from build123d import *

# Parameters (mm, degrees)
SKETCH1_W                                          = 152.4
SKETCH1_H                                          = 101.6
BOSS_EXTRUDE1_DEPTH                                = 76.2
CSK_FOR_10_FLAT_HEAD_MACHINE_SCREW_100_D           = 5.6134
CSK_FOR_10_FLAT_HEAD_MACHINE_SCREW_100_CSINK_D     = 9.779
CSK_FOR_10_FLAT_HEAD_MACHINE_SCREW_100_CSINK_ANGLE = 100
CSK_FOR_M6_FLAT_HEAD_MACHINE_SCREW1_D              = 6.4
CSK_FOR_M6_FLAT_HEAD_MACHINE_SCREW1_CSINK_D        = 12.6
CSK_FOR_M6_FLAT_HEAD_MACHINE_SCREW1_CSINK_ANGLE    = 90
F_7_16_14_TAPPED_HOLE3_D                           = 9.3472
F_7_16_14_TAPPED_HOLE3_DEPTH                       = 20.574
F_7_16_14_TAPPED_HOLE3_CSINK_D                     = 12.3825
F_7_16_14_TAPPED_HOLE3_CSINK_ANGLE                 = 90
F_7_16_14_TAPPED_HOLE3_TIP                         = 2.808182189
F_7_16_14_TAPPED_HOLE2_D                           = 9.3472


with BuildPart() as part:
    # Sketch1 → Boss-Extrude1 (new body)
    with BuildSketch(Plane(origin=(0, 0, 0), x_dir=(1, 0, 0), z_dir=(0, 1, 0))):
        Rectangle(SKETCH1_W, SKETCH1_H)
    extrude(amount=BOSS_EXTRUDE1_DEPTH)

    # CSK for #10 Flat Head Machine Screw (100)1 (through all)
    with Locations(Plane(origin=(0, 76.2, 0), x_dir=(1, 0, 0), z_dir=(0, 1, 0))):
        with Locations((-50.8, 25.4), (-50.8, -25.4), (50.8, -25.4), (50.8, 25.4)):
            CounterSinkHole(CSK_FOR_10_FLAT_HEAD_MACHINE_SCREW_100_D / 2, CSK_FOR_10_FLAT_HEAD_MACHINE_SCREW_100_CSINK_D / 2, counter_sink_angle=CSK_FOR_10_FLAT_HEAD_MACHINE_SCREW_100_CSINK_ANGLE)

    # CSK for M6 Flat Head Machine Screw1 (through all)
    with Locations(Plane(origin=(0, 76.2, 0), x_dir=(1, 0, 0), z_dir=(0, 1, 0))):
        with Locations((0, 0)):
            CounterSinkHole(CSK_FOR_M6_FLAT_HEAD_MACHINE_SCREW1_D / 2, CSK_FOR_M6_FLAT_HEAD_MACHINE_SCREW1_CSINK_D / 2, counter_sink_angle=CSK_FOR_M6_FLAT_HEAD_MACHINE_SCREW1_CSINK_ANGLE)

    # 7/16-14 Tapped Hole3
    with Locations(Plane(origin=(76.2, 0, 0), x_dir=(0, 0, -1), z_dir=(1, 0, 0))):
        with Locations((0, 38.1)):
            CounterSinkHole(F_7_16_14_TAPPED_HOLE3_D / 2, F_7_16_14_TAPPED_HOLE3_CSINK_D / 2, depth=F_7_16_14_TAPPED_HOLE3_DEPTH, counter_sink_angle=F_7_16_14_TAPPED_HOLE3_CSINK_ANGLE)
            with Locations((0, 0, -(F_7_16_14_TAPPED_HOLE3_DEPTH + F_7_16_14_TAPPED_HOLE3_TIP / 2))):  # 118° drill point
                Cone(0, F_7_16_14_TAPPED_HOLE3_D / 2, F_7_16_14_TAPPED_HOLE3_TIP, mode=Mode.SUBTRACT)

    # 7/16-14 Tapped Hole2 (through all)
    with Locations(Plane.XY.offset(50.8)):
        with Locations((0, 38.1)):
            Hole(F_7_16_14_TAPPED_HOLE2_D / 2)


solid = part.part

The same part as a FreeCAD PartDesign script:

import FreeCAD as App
import Part
import Sketcher
Q = App.Units.Quantity


def add_polygon(sketch, points):
    """Adds a closed chain of lines whose ends are joined by coincident constraints."""
    first, n = sketch.GeometryCount, len(points)
    for a, b in zip(points, points[1:] + points[:1]):
        sketch.addGeometry(Part.LineSegment(App.Vector(*a, 0), App.Vector(*b, 0)), False)
    for i in range(n):
        sketch.addConstraint(Sketcher.Constraint("Coincident", first + i, 2, first + (i + 1) % n, 1))

doc = App.newDocument("Part")
body = doc.addObject("PartDesign::Body", "Body")

# Sketch on XZ plane
sketch1 = body.newObject("Sketcher::SketchObject", "Sketch")
sketch1.AttachmentSupport = (doc.getObject("XZ_Plane"), [""])
sketch1.MapMode = "FlatFace"
add_polygon(sketch1, [(-76.2, -50.8), (-76.2, 50.8), (76.2, 50.8), (76.2, -50.8)])  # lines 0-3
sketch1.addConstraint([
    Sketcher.Constraint("Vertical", 0),
    Sketcher.Constraint("Horizontal", 1),
    Sketcher.Constraint("Vertical", 2),
    Sketcher.Constraint("Horizontal", 3),
    Sketcher.Constraint("Symmetric", 0, 2, 2, 2, -1, 1),
    Sketcher.Constraint("DistanceX", 1, 1, 1, 2, Q("6 in")),
    Sketcher.Constraint("DistanceY", 0, 1, 0, 2, Q("4 in")),
])
pad1 = body.newObject("PartDesign::Pad", "Pad")
pad1.Profile = sketch1
pad1.Length = Q("3 in")
pad1.Reversed = True

# Sketch on XZ plane
sketch2 = body.newObject("Sketcher::SketchObject", "Sketch001")
sketch2.AttachmentSupport = (doc.getObject("XZ_Plane"), [""])
sketch2.MapMode = "FlatFace"
sketch2.AttachmentOffset = App.Placement(App.Vector(0, 0, -3 * 25.4), App.Rotation())
sketch2.addGeometry([
    Part.Circle(App.Vector(-50.8, -25.4, 0), App.Vector(0, 0, 1), 2.8067),
    Part.Circle(App.Vector(-50.8, 25.4, 0), App.Vector(0, 0, 1), 2.8067),
    Part.Circle(App.Vector(50.8, 25.4, 0), App.Vector(0, 0, 1), 2.8067),
    Part.Circle(App.Vector(50.8, -25.4, 0), App.Vector(0, 0, 1), 2.8067),
], False)
sketch2.addConstraint([
    Sketcher.Constraint("Equal", 0, 1),
    Sketcher.Constraint("Equal", 1, 2),
    Sketcher.Constraint("Equal", 2, 3),
    Sketcher.Constraint("Symmetric", 0, 3, 2, 3, -1, 1),
    Sketcher.Constraint("Symmetric", 1, 3, 3, 3, -1, 1),
    Sketcher.Constraint("Symmetric", 1, 3, 2, 3, -2),
    Sketcher.Constraint("Diameter", 0, Q("0.221 in")),
    Sketcher.Constraint("DistanceX", 0, 3, -1, 1, Q("2 in")),
    Sketcher.Constraint("DistanceY", 0, 3, -1, 1, Q("1 in")),
])
doc.recompute()
hole = body.newObject("PartDesign::Hole", "Hole")
hole.Profile = sketch2
hole.ThreadType = "None"
hole.Diameter = Q("0.221 in")
hole.DepthType = "ThroughAll"
hole.HoleCutType = "Countersink"
hole.HoleCutDiameter = Q("0.385 in")
hole.HoleCutCountersinkAngle = 100
hole.Reversed = True

# Sketch on XZ plane
sketch3 = body.newObject("Sketcher::SketchObject", "Sketch002")
sketch3.AttachmentSupport = (doc.getObject("XZ_Plane"), [""])
sketch3.MapMode = "FlatFace"
sketch3.AttachmentOffset = App.Placement(App.Vector(0, 0, -3 * 25.4), App.Rotation())
sketch3.addGeometry(Part.Circle(App.Vector(0, 0, 0), App.Vector(0, 0, 1), 3.2), False)
sketch3.addConstraint([
    Sketcher.Constraint("Coincident", 0, 3, -1, 1),
    Sketcher.Constraint("Diameter", 0, Q("6.4 mm")),
])
doc.recompute()
hole2 = body.newObject("PartDesign::Hole", "Hole001")
hole2.Profile = sketch3
hole2.ThreadType = "None"
hole2.Diameter = 6.4
hole2.DepthType = "ThroughAll"
hole2.HoleCutType = "Countersink"
hole2.HoleCutDiameter = 12.6
hole2.HoleCutCountersinkAngle = 90
hole2.Reversed = True

# Sketch on YZ plane
sketch4 = body.newObject("Sketcher::SketchObject", "Sketch003")
sketch4.AttachmentSupport = (doc.getObject("YZ_Plane"), [""])
sketch4.MapMode = "FlatFace"
sketch4.AttachmentOffset = App.Placement(App.Vector(0, 0, 3 * 25.4), App.Rotation())
sketch4.addGeometry(Part.Circle(App.Vector(38.1, 0, 0), App.Vector(0, 0, 1), 4.6736), False)
sketch4.addConstraint([
    Sketcher.Constraint("PointOnObject", 0, 3, -1),
    Sketcher.Constraint("Diameter", 0, Q("0.368 in")),
    Sketcher.Constraint("DistanceX", -1, 1, 0, 3, Q("1.5 in")),
])
doc.recompute()
hole3 = body.newObject("PartDesign::Hole", "Hole002")
hole3.Profile = sketch4
hole3.ThreadType = "None"
hole3.Diameter = Q("0.368 in")
hole3.DepthType = "Dimension"
hole3.Depth = Q("0.81 in")
hole3.DrillPoint = "Angled"
hole3.DrillPointAngle = 118
hole3.HoleCutType = "Countersink"
hole3.HoleCutDiameter = Q("0.4875 in")
hole3.HoleCutCountersinkAngle = 90

# Sketch on XY plane
sketch5 = body.newObject("Sketcher::SketchObject", "Sketch004")
sketch5.AttachmentSupport = (doc.getObject("XY_Plane"), [""])
sketch5.MapMode = "FlatFace"
sketch5.AttachmentOffset = App.Placement(App.Vector(0, 0, 2 * 25.4), App.Rotation())
sketch5.addGeometry(Part.Circle(App.Vector(0, 38.1, 0), App.Vector(0, 0, 1), 4.6736), False)
sketch5.addConstraint([
    Sketcher.Constraint("PointOnObject", 0, 3, -2),
    Sketcher.Constraint("Diameter", 0, Q("0.368 in")),
    Sketcher.Constraint("DistanceY", -1, 1, 0, 3, Q("1.5 in")),
])
doc.recompute()
hole4 = body.newObject("PartDesign::Hole", "Hole003")
hole4.Profile = sketch5
hole4.ThreadType = "None"
hole4.Diameter = Q("0.368 in")
hole4.DepthType = "ThroughAll"

doc.recompute()
